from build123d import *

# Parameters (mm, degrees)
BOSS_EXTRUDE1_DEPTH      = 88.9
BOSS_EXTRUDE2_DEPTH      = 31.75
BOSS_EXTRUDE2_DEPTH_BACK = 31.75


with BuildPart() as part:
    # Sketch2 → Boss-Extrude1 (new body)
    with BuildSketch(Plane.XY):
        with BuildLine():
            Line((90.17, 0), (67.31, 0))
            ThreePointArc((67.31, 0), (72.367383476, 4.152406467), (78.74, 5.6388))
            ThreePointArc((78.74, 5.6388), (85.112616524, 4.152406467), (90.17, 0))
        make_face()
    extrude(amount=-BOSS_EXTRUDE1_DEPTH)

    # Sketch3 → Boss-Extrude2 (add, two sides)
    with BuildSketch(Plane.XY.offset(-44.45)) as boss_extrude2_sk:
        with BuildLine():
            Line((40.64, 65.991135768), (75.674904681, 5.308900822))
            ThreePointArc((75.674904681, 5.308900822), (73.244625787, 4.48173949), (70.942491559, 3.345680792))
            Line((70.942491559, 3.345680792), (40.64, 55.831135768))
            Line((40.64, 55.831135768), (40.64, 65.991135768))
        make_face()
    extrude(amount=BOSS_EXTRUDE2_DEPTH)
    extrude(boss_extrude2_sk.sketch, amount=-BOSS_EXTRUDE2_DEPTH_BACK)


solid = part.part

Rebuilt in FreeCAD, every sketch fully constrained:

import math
import FreeCAD as App
import Part
import Sketcher

V = App.Vector
Q = App.Units.Quantity

doc = App.newDocument("Part")
body = doc.addObject("PartDesign::Body", "Body")

sketch1 = body.newObject("Sketcher::SketchObject", "Sketch")
sketch1.AttachmentSupport = (doc.getObject("XY_Plane"), [""])
sketch1.MapMode = "FlatFace"
sketch1.addGeometry(Part.LineSegment(V(67, 0, 0), V(90, 0, 0)), False)
sketch1.addGeometry(Part.ArcOfCircle(Part.Circle(V(79, -9, 0), V(0, 0, 1), 14), math.radians(37), math.radians(90)), False)
sketch1.addGeometry(Part.ArcOfCircle(Part.Circle(V(79, -9, 0), V(0, 0, 1), 14), math.radians(90), math.radians(143)), False)
sketch1.addConstraint(Sketcher.Constraint("Coincident", 0, 2, 1, 1))
sketch1.addConstraint(Sketcher.Constraint("Tangent", 1, 2, 2, 1))
sketch1.addConstraint(Sketcher.Constraint("Coincident", 2, 2, 0, 1))
sketch1.addConstraint(Sketcher.Constraint("Horizontal", 0))
sketch1.addConstraint(Sketcher.Constraint("Equal", 1, 2))
sketch1.addConstraint(Sketcher.Constraint("PointOnObject", 0, 2, -1))
sketch1.addConstraint(Sketcher.Constraint("Vertical", 2, 3, 1, 2))
sketch1.addConstraint(Sketcher.Constraint("DistanceX", 0, 1, 0, 2, Q("0.9 in")))
sketch1.addConstraint(Sketcher.Constraint("DistanceX", -1, 1, 1, 3, Q("3.1 in")))
sketch1.addConstraint(Sketcher.Constraint("DistanceY", -1, 1, 1, 2, Q("0.222 in")))
pad1 = body.newObject("PartDesign::Pad", "Pad")
pad1.Profile = sketch1
pad1.Length = Q("3.5 in")
pad1.Reversed = True

sketch2 = body.newObject("Sketcher::SketchObject", "Sketch001")
sketch2.AttachmentSupport = (doc.getObject("XY_Plane"), [""])
sketch2.MapMode = "FlatFace"
sketch2.AttachmentOffset = App.Placement(V(0, 0, -1.75 * 25.4), App.Rotation())
sketch2.addGeometry(Part.LineSegment(V(76, 5, 0), V(41, 66, 0)), False)
sketch2.addGeometry(Part.LineSegment(V(41, 66, 0), V(41, 56, 0)), False)
sketch2.addGeometry(Part.LineSegment(V(41, 56, 0), V(71, 3, 0)), False)
sketch2.addGeometry(Part.ArcOfCircle(Part.Circle(V(81, -14, 0), V(0, 0, 1), 20), math.radians(105.06), math.radians(120)), False)
sketch2.addConstraint(Sketcher.Constraint("Coincident", 0, 2, 1, 1))
sketch2.addConstraint(Sketcher.Constraint("Coincident", 1, 2, 2, 1))
sketch2.addConstraint(Sketcher.Constraint("Coincident", 2, 2, 3, 2))
sketch2.addConstraint(Sketcher.Constraint("Coincident", 3, 1, 0, 1))
sketch2.addConstraint(Sketcher.Constraint("Vertical", 1))
sketch2.addConstraint(Sketcher.Constraint("Parallel", 0, 2))
sketch2.addConstraint(Sketcher.Constraint("DistanceY", 1, 2, 1, 1, Q("0.4 in")))
sketch2.addConstraint(Sketcher.Constraint("Angle", 0, Q("120 deg")))
sketch2.addConstraint(Sketcher.Constraint("DistanceX", -1, 1, 0, 2, Q("1.6 in")))
sketch2.addConstraint(Sketcher.Constraint("Radius", 3, Q("19.706941 mm")))
sketch2.addConstraint(Sketcher.Constraint("DistanceY", -1, 1, 3, 1, Q("5.308901 mm")))
sketch2.addConstraint(Sketcher.Constraint("Distance", 0, Q("70.069809 mm")))
sketch2.addConstraint(Sketcher.Constraint("DistanceY", 3, 3, -1, 1, Q("13.721031 mm")))
pad2 = body.newObject("PartDesign::Pad", "Pad001")
pad2.Profile = sketch2
pad2.Type = "TwoLengths"
pad2.Length = Q("1.25 in")
pad2.Length2 = Q("1.25 in")

doc.recompute()
